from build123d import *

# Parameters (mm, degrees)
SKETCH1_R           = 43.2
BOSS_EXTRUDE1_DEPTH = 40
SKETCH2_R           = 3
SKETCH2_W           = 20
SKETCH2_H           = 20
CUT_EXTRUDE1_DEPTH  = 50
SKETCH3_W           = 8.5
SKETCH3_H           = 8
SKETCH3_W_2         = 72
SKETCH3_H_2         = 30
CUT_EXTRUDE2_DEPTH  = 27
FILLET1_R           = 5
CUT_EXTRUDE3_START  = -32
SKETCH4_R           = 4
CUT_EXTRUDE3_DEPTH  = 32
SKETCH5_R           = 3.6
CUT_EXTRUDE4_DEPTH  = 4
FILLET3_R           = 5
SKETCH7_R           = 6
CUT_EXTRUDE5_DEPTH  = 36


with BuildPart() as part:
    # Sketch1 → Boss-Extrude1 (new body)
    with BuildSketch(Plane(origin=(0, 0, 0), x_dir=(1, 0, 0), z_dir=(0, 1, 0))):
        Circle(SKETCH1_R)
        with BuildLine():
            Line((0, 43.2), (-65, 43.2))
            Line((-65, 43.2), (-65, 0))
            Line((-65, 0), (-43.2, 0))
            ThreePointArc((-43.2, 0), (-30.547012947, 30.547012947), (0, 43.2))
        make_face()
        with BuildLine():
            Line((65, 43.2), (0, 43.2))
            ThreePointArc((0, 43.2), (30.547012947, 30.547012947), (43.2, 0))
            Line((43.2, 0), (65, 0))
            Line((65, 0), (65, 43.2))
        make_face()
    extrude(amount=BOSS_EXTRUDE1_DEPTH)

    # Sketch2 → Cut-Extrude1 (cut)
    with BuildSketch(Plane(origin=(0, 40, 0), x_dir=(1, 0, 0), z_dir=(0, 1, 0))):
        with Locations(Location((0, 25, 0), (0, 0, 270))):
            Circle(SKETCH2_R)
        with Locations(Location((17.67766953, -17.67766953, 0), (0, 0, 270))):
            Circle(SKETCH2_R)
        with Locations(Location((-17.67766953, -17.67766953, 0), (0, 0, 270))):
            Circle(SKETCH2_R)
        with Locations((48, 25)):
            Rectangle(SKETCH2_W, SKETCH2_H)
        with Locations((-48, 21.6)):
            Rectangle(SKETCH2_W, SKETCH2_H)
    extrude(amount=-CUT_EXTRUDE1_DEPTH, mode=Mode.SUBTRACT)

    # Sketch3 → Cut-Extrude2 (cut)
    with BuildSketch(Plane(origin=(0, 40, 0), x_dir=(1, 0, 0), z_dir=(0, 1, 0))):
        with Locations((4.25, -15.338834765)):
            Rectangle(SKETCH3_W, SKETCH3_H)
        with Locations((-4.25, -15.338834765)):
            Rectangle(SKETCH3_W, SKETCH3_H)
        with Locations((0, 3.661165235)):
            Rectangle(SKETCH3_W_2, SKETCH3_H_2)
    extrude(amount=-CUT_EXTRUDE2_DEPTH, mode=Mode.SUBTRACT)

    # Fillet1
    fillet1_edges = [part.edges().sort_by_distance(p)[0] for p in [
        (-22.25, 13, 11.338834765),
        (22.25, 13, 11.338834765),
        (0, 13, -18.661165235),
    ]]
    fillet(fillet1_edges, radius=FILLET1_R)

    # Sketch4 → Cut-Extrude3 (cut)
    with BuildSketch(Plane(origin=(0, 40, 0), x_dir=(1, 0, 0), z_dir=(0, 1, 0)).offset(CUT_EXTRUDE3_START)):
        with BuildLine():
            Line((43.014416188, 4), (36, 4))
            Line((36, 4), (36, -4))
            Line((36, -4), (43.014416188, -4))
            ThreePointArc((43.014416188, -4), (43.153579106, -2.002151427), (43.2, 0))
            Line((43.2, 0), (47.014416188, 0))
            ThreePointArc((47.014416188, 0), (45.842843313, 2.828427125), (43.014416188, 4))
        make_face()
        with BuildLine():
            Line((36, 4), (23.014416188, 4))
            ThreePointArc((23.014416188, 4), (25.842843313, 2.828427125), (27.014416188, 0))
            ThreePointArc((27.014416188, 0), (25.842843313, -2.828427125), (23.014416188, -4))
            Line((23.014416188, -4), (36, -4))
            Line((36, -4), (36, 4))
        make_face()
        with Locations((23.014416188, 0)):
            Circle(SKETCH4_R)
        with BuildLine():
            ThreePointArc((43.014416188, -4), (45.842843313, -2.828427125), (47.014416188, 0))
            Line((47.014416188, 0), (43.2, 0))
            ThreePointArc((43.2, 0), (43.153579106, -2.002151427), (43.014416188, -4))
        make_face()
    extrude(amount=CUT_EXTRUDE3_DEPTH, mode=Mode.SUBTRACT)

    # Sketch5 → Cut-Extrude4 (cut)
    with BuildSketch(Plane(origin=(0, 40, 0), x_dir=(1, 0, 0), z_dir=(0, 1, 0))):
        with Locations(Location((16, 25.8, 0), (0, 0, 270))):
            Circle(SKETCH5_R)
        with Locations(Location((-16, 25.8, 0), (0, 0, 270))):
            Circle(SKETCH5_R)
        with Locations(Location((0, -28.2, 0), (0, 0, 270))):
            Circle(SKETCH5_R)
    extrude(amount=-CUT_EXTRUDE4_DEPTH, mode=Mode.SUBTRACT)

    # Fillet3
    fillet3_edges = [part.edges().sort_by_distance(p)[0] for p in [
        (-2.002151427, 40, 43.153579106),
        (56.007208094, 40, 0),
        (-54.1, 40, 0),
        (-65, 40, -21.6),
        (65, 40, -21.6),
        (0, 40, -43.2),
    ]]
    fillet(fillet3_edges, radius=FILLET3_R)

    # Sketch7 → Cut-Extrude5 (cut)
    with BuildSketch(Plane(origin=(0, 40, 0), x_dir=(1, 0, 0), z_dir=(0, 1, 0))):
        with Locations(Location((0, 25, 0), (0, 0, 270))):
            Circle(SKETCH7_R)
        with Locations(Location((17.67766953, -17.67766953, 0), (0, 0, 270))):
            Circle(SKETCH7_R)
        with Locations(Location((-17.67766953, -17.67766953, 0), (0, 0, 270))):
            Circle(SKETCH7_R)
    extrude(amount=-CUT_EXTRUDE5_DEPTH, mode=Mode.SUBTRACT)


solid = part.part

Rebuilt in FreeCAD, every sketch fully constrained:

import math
import FreeCAD as App
import Part
import Sketcher
from FreeCAD import Vector
Q = App.Units.Quantity


def edges_at(feature, points):
    """Names of the edges that pass closest to the given points."""
    edges = feature.Shape.Edges
    near = lambda p: min(range(len(edges)), key=lambda i: edges[i].distToShape(Part.Vertex(*p))[0])
    return sorted({f"Edge{near(p) + 1}" for p in points})

doc = App.newDocument("Part")
body = doc.addObject("PartDesign::Body", "Body")

sketch1 = body.newObject("Sketcher::SketchObject", "Sketch")
sketch1.AttachmentSupport = (doc.getObject("XZ_Plane"), [""])
sketch1.MapMode = "FlatFace"
sketch1.addGeometry([
    Part.LineSegment(Vector(-65, -43.2, 0), Vector(-65, 0, 0)),
    Part.LineSegment(Vector(-65, 0, 0), Vector(-43.2, 0, 0)),
    Part.ArcOfCircle(Part.Circle(Vector(0, 0, 0), Vector(0, 0, 1), 43.2), math.radians(0), math.radians(180)),
    Part.LineSegment(Vector(43.2, 0, 0), Vector(65, 0, 0)),
    Part.LineSegment(Vector(65, 0, 0), Vector(65, -43.2, 0)),
    Part.LineSegment(Vector(65, -43.2, 0), Vector(-65, -43.2, 0)),
], False)
sketch1.addConstraint([
    Sketcher.Constraint("Coincident", 0, 2, 1, 1),
    Sketcher.Constraint("Coincident", 1, 2, 2, 2),
    Sketcher.Constraint("Coincident", 2, 1, 3, 1),
    Sketcher.Constraint("Coincident", 3, 2, 4, 1),
    Sketcher.Constraint("Coincident", 4, 2, 5, 1),
    Sketcher.Constraint("Coincident", 5, 2, 0, 1),
    Sketcher.Constraint("Vertical", 0),
    Sketcher.Constraint("Horizontal", 1),
    Sketcher.Constraint("Horizontal", 3),
    Sketcher.Constraint("Vertical", 4),
    Sketcher.Constraint("Horizontal", 5),
    Sketcher.Constraint("Coincident", 2, 3, -1, 1),
    Sketcher.Constraint("Symmetric", 0, 2, 3, 2, -1, 1),
    Sketcher.Constraint("PointOnObject", 0, 2, -1),
    Sketcher.Constraint("Radius", 2, Q("43.2 mm")),
    Sketcher.Constraint("DistanceX", 5, 2, 5, 1, Q("130 mm")),
    Sketcher.Constraint("DistanceY", 0, 1, 0, 2, Q("43.2 mm")),
])
pad1 = body.newObject("PartDesign::Pad", "Pad")
pad1.Profile = sketch1
pad1.Length = 40
pad1.Reversed = True

sketch2 = body.newObject("Sketcher::SketchObject", "Sketch001")
sketch2.AttachmentSupport = (doc.getObject("XZ_Plane"), [""])
sketch2.MapMode = "FlatFace"
sketch2.AttachmentOffset = App.Placement(Vector(0, 0, -40), App.Rotation())
sketch2.addGeometry([
    Part.Circle(Vector(0, -25, 0), Vector(0, 0, 1), 3),
    Part.Circle(Vector(17.67767, 17.67767, 0), Vector(0, 0, 1), 3),
    Part.Circle(Vector(-17.67767, 17.67767, 0), Vector(0, 0, 1), 3),
    Part.LineSegment(Vector(38, -35, 0), Vector(38, -15, 0)),
    Part.LineSegment(Vector(38, -15, 0), Vector(58, -15, 0)),
    Part.LineSegment(Vector(58, -15, 0), Vector(58, -35, 0)),
    Part.LineSegment(Vector(58, -35, 0), Vector(38, -35, 0)),
    Part.LineSegment(Vector(-58, -31.6, 0), Vector(-58, -11.6, 0)),
    Part.LineSegment(Vector(-58, -11.6, 0), Vector(-38, -11.6, 0)),
    Part.LineSegment(Vector(-38, -11.6, 0), Vector(-38, -31.6, 0)),
    Part.LineSegment(Vector(-38, -31.6, 0), Vector(-58, -31.6, 0)),
], False)
sketch2.addConstraint([
    Sketcher.Constraint("Coincident", 3, 2, 4, 1),
    Sketcher.Constraint("Coincident", 4, 2, 5, 1),
    Sketcher.Constraint("Coincident", 5, 2, 6, 1),
    Sketcher.Constraint("Coincident", 6, 2, 3, 1),
    Sketcher.Constraint("Coincident", 7, 2, 8, 1),
    Sketcher.Constraint("Coincident", 8, 2, 9, 1),
    Sketcher.Constraint("Coincident", 9, 2, 10, 1),
    Sketcher.Constraint("Coincident", 10, 2, 7, 1),
    Sketcher.Constraint("Vertical", 3),
    Sketcher.Constraint("Horizontal", 4),
    Sketcher.Constraint("Vertical", 5),
    Sketcher.Constraint("Horizontal", 6),
    Sketcher.Constraint("Vertical", 7),
    Sketcher.Constraint("Horizontal", 8),
    Sketcher.Constraint("Vertical", 9),
    Sketcher.Constraint("Horizontal", 10),
    Sketcher.Constraint("Equal", 0, 1),
    Sketcher.Constraint("Equal", 1, 2),
    Sketcher.Constraint("Symmetric", 1, 3, 2, 3, -2),
    Sketcher.Constraint("PointOnObject", 0, 3, -2),
    Sketcher.Constraint("Equal", 6, 8),
    Sketcher.Constraint("Equal", 10, 3),
    Sketcher.Constraint("Equal", 5, 7),
    Sketcher.Constraint("Diameter", 0, Q("6 mm")),
    Sketcher.Constraint("DistanceX", 4, 1, 4, 2, Q("20 mm")),
    Sketcher.Constraint("DistanceY", 0, 3, -1, 1, Q("25 mm")),
    Sketcher.Constraint("DistanceX", -1, 1, 3, 2, Q("38 mm")),
    Sketcher.Constraint("DistanceY", 3, 2, -1, 1, Q("15 mm")),
    Sketcher.Constraint("DistanceX", 7, 2, -1, 1, Q("58 mm")),
    Sketcher.Constraint("DistanceY", 7, 2, -1, 1, Q("11.6 mm")),
    Sketcher.Constraint("DistanceX", -1, 1, 1, 3, Q("17.67767 mm")),
    Sketcher.Constraint("DistanceY", -1, 1, 1, 3, Q("17.67767 mm")),
])
pocket1 = body.newObject("PartDesign::Pocket", "Pocket")
pocket1.Profile = sketch2
pocket1.Length = 50
pocket1.Reversed = True

sketch3 = body.newObject("Sketcher::SketchObject", "Sketch002")
sketch3.AttachmentSupport = (doc.getObject("XZ_Plane"), [""])
sketch3.MapMode = "FlatFace"
sketch3.AttachmentOffset = App.Placement(Vector(0, 0, -40), App.Rotation())
sketch3.addGeometry([
    Part.LineSegment(Vector(8.5, 19.338835, 0), Vector(8.5, 11.338835, 0)),
    Part.LineSegment(Vector(8.5, 11.338835, 0), Vector(36, 11.338835, 0)),
    Part.LineSegment(Vector(36, 11.338835, 0), Vector(36, -18.661165, 0)),
    Part.LineSegment(Vector(36, -18.661165, 0), Vector(-36, -18.661165, 0)),
    Part.LineSegment(Vector(-36, -18.661165, 0), Vector(-36, 11.338835, 0)),
    Part.LineSegment(Vector(-36, 11.338835, 0), Vector(-8.5, 11.338835, 0)),
    Part.LineSegment(Vector(-8.5, 11.338835, 0), Vector(-8.5, 19.338835, 0)),
    Part.LineSegment(Vector(-8.5, 19.338835, 0), Vector(8.5, 19.338835, 0)),
], False)
sketch3.addConstraint([
    Sketcher.Constraint("Coincident", 0, 2, 1, 1),
    Sketcher.Constraint("Coincident", 1, 2, 2, 1),
    Sketcher.Constraint("Coincident", 2, 2, 3, 1),
    Sketcher.Constraint("Coincident", 3, 2, 4, 1),
    Sketcher.Constraint("Coincident", 4, 2, 5, 1),
    Sketcher.Constraint("Coincident", 5, 2, 6, 1),
    Sketcher.Constraint("Coincident", 6, 2, 7, 1),
    Sketcher.Constraint("Coincident", 7, 2, 0, 1),
    Sketcher.Constraint("Vertical", 0),
    Sketcher.Constraint("Horizontal", 1),
    Sketcher.Constraint("Vertical", 2),
    Sketcher.Constraint("Horizontal", 3),
    Sketcher.Constraint("Vertical", 4),
    Sketcher.Constraint("Horizontal", 5),
    Sketcher.Constraint("Vertical", 6),
    Sketcher.Constraint("Horizontal", 7),
    Sketcher.Constraint("Symmetric", 1, 2, 4, 2, -2),
    Sketcher.Constraint("Equal", 1, 5),
    Sketcher.Constraint("DistanceX", 3, 2, 3, 1, Q("72 mm")),
    Sketcher.Constraint("DistanceX", 7, 1, 7, 2, Q("17 mm")),
    Sketcher.Constraint("DistanceY", 0, 2, 0, 1, Q("8 mm")),
    Sketcher.Constraint("DistanceY", 2, 2, 2, 1, Q("30 mm")),
    Sketcher.Constraint("DistanceY", -1, 1, 0, 2, Q("11.338835 mm")),
])
pocket2 = body.newObject("PartDesign::Pocket", "Pocket001")
pocket2.Profile = sketch3
pocket2.Length = 27
pocket2.Reversed = True
doc.recompute()

fillet = body.newObject("PartDesign::Fillet", "Fillet")
fillet.Base = (pocket2, edges_at(pocket2, [(-22.25, 13, 11.339), (22.25, 13, 11.339), (0, 13, -18.661)]))
fillet.Radius = 5

sketch4 = body.newObject("Sketcher::SketchObject", "Sketch003")
sketch4.AttachmentSupport = (doc.getObject("XZ_Plane"), [""])
sketch4.MapMode = "FlatFace"
sketch4.AttachmentOffset = App.Placement(Vector(0, 0, -8), App.Rotation())
sketch4.addGeometry([
    Part.LineSegment(Vector(43.014416, -4, 0), Vector(23.014416, -4, 0)),
    Part.ArcOfCircle(Part.Circle(Vector(23.014416, 0, 0), Vector(0, 0, 1), 4), math.radians(90), math.radians(270)),
    Part.LineSegment(Vector(23.014416, 4, 0), Vector(43.014416, 4, 0)),
    Part.ArcOfCircle(Part.Circle(Vector(43.014416, 0, 0), Vector(0, 0, 1), 4), math.radians(0), math.radians(90)),
    Part.ArcOfCircle(Part.Circle(Vector(43.014416, 0, 0), Vector(0, 0, 1), 4), math.radians(-90), math.radians(0)),
], False)
sketch4.addConstraint([
    Sketcher.Constraint("Tangent", 0, 2, 1, 2),
    Sketcher.Constraint("Tangent", 1, 1, 2, 1),
    Sketcher.Constraint("Tangent", 2, 2, 3, 2),
    Sketcher.Constraint("Tangent", 3, 1, 4, 2),
    Sketcher.Constraint("Tangent", 4, 1, 0, 1),
    Sketcher.Constraint("Horizontal", 0),
    Sketcher.Constraint("Horizontal", 2),
    Sketcher.Constraint("Equal", 1, 3),
    Sketcher.Constraint("PointOnObject", 1, 3, -1),
    Sketcher.Constraint("PointOnObject", 3, 1, -1),
    Sketcher.Constraint("Radius", 1, Q("4 mm")),
    Sketcher.Constraint("DistanceX", 0, 2, 0, 1, Q("20 mm")),
    Sketcher.Constraint("DistanceX", -1, 1, 1, 3, Q("23.014416 mm")),
])
pocket3 = body.newObject("PartDesign::Pocket", "Pocket002")
pocket3.Profile = sketch4
pocket3.Length = 32

sketch5 = body.newObject("Sketcher::SketchObject", "Sketch004")
sketch5.AttachmentSupport = (doc.getObject("XZ_Plane"), [""])
sketch5.MapMode = "FlatFace"
sketch5.AttachmentOffset = App.Placement(Vector(0, 0, -40), App.Rotation())
sketch5.addGeometry([
    Part.Circle(Vector(16, -25.8, 0), Vector(0, 0, 1), 3.6),
    Part.Circle(Vector(-16, -25.8, 0), Vector(0, 0, 1), 3.6),
    Part.Circle(Vector(0, 28.2, 0), Vector(0, 0, 1), 3.6),
], False)
sketch5.addConstraint([
    Sketcher.Constraint("Equal", 0, 1),
    Sketcher.Constraint("Equal", 1, 2),
    Sketcher.Constraint("Symmetric", 0, 3, 1, 3, -2),
    Sketcher.Constraint("PointOnObject", 2, 3, -2),
    Sketcher.Constraint("Diameter", 0, Q("7.2 mm")),
    Sketcher.Constraint("DistanceX", -1, 1, 0, 3, Q("16 mm")),
    Sketcher.Constraint("DistanceY", 0, 3, 2, 3, Q("54 mm")),
    Sketcher.Constraint("DistanceY", 0, 3, -1, 1, Q("25.8 mm")),
])
pocket4 = body.newObject("PartDesign::Pocket", "Pocket003")
pocket4.Profile = sketch5
pocket4.Length = 4
pocket4.Reversed = True
doc.recompute()

fillet2 = body.newObject("PartDesign::Fillet", "Fillet001")
fillet2.Base = (pocket4, edges_at(pocket4, [
    (-2.002, 40, 43.154),
    (56.007, 40, 0),
    (-54.1, 40, 0),
    (-65, 40, -21.6),
    (65, 40, -21.6),
    (0, 40, -43.2),
]))
fillet2.Radius = 5

sketch6 = body.newObject("Sketcher::SketchObject", "Sketch005")
sketch6.AttachmentSupport = (doc.getObject("XZ_Plane"), [""])
sketch6.MapMode = "FlatFace"
sketch6.AttachmentOffset = App.Placement(Vector(0, 0, -40), App.Rotation())
sketch6.addGeometry([
    Part.Circle(Vector(0, -25, 0), Vector(0, 0, 1), 6),
    Part.Circle(Vector(17.67767, 17.67767, 0), Vector(0, 0, 1), 6),
    Part.Circle(Vector(-17.67767, 17.67767, 0), Vector(0, 0, 1), 6),
], False)
sketch6.addConstraint([
    Sketcher.Constraint("Equal", 0, 1),
    Sketcher.Constraint("Equal", 1, 2),
    Sketcher.Constraint("Symmetric", 1, 3, 2, 3, -2),
    Sketcher.Constraint("PointOnObject", 0, 3, -2),
    Sketcher.Constraint("Diameter", 0, Q("12 mm")),
    Sketcher.Constraint("DistanceY", 0, 3, -1, 1, Q("25 mm")),
    Sketcher.Constraint("DistanceX", -1, 1, 1, 3, Q("17.67767 mm")),
    Sketcher.Constraint("DistanceY", -1, 1, 1, 3, Q("17.67767 mm")),
])
pocket5 = body.newObject("PartDesign::Pocket", "Pocket004")
pocket5.Profile = sketch6
pocket5.Length = 36
pocket5.Reversed = True

doc.recompute()
